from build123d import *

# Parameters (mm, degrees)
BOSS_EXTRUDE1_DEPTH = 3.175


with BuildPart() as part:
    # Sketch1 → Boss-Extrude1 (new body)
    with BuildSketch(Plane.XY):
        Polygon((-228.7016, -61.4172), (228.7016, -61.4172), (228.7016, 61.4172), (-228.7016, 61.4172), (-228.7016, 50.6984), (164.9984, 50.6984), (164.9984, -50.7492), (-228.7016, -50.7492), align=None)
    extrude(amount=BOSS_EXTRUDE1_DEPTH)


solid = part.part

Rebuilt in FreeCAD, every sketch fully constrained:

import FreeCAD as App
import Part
import Sketcher
Q = App.Units.Quantity


def add_polygon(sketch, points):
    """Adds a closed chain of lines whose ends are joined by coincident constraints."""
    first, n = sketch.GeometryCount, len(points)
    for a, b in zip(points, points[1:] + points[:1]):
        sketch.addGeometry(Part.LineSegment(App.Vector(*a, 0), App.Vector(*b, 0)), False)
    for i in range(n):
        sketch.addConstraint(Sketcher.Constraint("Coincident", first + i, 2, first + (i + 1) % n, 1))

doc = App.newDocument("Part")
body = doc.addObject("PartDesign::Body", "Body")

sketch1 = body.newObject("Sketcher::SketchObject", "Sketch")
sketch1.AttachmentSupport = (doc.getObject("XY_Plane"), [""])
sketch1.MapMode = "FlatFace"
add_polygon(sketch1, [(-228.7016, -61.4172), (228.7016, -61.4172), (228.7016, 61.4172), (-228.7016, 61.4172), (-228.7016, 50.6984), (164.9984, 50.6984), (164.9984, -50.7492), (-228.7016, -50.7492)])
sketch1.addConstraint(Sketcher.Constraint("Horizontal", 0))
sketch1.addConstraint(Sketcher.Constraint("Vertical", 1))
sketch1.addConstraint(Sketcher.Constraint("Horizontal", 2))
sketch1.addConstraint(Sketcher.Constraint("Vertical", 3))
sketch1.addConstraint(Sketcher.Constraint("Horizontal", 4))
sketch1.addConstraint(Sketcher.Constraint("Vertical", 5))
sketch1.addConstraint(Sketcher.Constraint("Horizontal", 6))
sketch1.addConstraint(Sketcher.Constraint("Vertical", 7))
sketch1.addConstraint(Sketcher.Constraint("Symmetric", 0, 2, 2, 2, -1, 1))
sketch1.addConstraint(Sketcher.Constraint("Vertical", 3, 2, 6, 2))
sketch1.addConstraint(Sketcher.Constraint("DistanceX", 4, 1, 4, 2, Q("15.5 in")))
sketch1.addConstraint(Sketcher.Constraint("DistanceY", 7, 2, 7, 1, Q("0.42 in")))
sketch1.addConstraint(Sketcher.Constraint("DistanceX", 0, 1, 0, 2, Q("18.008 in")))
sketch1.addConstraint(Sketcher.Constraint("DistanceY", 1, 1, 1, 2, Q("4.836 in")))
sketch1.addConstraint(Sketcher.Constraint("DistanceY", 3, 2, 3, 1, Q("0.422 in")))
pad1 = body.newObject("PartDesign::Pad", "Pad")
pad1.Profile = sketch1
pad1.Length = Q("0.125 in")

doc.recompute()
